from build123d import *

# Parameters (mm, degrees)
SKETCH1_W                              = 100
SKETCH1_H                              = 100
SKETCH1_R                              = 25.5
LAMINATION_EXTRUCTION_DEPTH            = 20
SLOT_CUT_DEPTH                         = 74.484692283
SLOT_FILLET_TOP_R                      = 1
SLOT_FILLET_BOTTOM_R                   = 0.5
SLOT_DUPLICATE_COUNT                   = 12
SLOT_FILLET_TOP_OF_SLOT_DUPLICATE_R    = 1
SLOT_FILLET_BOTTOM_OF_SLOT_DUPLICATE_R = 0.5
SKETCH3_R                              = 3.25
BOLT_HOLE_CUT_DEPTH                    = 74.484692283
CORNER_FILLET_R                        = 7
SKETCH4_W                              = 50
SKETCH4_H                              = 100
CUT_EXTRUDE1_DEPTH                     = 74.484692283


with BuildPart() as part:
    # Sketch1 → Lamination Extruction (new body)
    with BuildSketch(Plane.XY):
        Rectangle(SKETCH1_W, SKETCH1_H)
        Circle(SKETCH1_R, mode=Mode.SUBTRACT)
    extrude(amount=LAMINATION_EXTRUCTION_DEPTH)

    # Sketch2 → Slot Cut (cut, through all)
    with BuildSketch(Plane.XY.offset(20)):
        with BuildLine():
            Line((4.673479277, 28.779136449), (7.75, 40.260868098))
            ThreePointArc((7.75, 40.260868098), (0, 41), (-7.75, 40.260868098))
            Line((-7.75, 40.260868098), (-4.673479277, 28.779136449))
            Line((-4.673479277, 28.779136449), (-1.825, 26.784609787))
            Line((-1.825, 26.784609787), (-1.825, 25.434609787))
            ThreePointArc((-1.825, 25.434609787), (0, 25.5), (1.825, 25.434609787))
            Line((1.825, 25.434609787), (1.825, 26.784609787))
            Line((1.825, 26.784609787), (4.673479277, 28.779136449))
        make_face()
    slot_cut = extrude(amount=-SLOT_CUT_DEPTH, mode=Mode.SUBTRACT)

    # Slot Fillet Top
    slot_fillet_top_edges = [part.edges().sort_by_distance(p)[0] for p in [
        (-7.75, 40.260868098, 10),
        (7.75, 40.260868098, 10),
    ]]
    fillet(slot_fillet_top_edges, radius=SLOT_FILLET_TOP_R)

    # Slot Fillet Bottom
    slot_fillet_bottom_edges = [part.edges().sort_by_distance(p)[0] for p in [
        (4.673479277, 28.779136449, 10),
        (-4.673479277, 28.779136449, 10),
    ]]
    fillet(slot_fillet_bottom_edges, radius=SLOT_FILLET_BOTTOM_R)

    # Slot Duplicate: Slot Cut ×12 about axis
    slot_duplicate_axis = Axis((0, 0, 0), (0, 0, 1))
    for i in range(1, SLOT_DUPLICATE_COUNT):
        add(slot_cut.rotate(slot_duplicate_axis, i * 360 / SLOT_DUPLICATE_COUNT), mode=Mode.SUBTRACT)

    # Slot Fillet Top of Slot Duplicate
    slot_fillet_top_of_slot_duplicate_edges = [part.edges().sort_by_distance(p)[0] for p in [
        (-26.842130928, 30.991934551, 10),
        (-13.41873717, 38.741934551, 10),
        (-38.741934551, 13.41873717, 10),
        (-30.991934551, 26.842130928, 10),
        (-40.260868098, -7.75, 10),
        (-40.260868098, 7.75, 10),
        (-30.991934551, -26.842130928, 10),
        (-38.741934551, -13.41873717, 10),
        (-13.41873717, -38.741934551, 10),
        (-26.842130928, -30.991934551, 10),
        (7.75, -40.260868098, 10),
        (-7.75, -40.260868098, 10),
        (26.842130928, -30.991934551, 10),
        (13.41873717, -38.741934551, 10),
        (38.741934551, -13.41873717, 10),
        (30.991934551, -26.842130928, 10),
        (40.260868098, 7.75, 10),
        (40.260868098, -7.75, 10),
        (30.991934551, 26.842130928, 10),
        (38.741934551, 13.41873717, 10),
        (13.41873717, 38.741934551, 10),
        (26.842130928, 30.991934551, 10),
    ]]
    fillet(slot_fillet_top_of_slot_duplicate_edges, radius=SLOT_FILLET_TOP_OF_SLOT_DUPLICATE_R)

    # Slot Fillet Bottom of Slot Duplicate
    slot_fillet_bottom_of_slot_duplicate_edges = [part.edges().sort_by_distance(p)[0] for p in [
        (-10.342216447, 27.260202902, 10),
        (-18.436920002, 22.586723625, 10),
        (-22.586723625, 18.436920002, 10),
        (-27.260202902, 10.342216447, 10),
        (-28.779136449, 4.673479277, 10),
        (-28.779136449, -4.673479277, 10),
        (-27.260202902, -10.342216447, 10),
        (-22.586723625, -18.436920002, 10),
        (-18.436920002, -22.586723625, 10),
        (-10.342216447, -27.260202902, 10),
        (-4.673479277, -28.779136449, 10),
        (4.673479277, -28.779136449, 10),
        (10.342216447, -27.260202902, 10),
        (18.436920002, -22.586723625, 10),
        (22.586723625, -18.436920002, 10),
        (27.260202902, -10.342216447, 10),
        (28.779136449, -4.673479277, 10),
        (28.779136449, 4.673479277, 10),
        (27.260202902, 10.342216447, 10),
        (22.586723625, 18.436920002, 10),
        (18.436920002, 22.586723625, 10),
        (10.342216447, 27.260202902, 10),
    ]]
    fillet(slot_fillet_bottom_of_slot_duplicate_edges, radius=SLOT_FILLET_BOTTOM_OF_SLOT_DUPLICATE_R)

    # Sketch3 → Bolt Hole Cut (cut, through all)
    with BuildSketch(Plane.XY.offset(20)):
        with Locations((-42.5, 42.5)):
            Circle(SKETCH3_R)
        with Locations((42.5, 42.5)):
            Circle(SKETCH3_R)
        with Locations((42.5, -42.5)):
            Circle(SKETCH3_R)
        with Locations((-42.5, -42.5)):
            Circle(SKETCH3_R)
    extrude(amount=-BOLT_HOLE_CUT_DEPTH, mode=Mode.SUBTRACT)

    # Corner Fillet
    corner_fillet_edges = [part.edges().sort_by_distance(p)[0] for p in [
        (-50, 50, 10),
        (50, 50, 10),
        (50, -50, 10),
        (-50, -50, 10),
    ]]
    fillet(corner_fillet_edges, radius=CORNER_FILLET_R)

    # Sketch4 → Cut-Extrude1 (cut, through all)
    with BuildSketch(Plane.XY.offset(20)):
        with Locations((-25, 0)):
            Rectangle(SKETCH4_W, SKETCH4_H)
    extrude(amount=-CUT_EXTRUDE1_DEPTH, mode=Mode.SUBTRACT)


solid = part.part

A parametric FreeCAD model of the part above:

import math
import FreeCAD as App
import Part
import Sketcher
from FreeCAD import Vector
Q = App.Units.Quantity


def edges_at(feature, points):
    """Names of the edges that pass closest to the given points."""
    edges = feature.Shape.Edges
    near = lambda p: min(range(len(edges)), key=lambda i: edges[i].distToShape(Part.Vertex(*p))[0])
    return sorted({f"Edge{near(p) + 1}" for p in points})

doc = App.newDocument("Part")
params = doc.addObject("Spreadsheet::Sheet", "Params")
for row, (alias, value) in enumerate([
    ("sketch1_diameter", "51 mm"),
    ("sketch1_width", "100 mm"),
    ("pad1_length", "20 mm"),
    ("sketch2_radius", "41 mm"),
    ("sketch2_radius2", "25.5 mm"),
    ("sketch2_height", "1.35 mm"),
    ("fillet_radius", "1 mm"),
    ("fillet2_radius", "0.5 mm"),
    ("fillet3_radius", "1 mm"),
    ("fillet4_radius", "0.5 mm"),
    ("sketch3_diameter", "6.5 mm"),
    ("fillet5_radius", "7 mm"),
    ("sketch4_width", "50 mm"),
    ("sketch4_height", "100 mm"),
], start=1):
    params.set(f"A{row}", alias)
    params.set(f"B{row}", "=" + value)
    params.setAlias(f"B{row}", alias)

body = doc.addObject("PartDesign::Body", "Body")

# Sketch on XY plane
sketch1 = doc.addObject("Sketcher::SketchObject", "Sketch")
body.addObject(sketch1)
sketch1.AttachmentSupport = (doc.XY_Plane, [""])
sketch1.MapMode = "FlatFace"
sketch1.addGeometry([
    Part.LineSegment(Vector(-50, 50, 0), Vector(-50, -50, 0)),  # 0
    Part.LineSegment(Vector(-50, -50, 0), Vector(50, -50, 0)),  # 1
    Part.LineSegment(Vector(50, -50, 0), Vector(50, 50, 0)),  # 2
    Part.LineSegment(Vector(50, 50, 0), Vector(-50, 50, 0)),  # 3
    Part.Circle(Vector(0, 0, 0), Vector(0, 0, 1), 26),  # 4
], False)
sketch1.addConstraint([
    Sketcher.Constraint("Coincident", 0, 2, 1, 1),
    Sketcher.Constraint("Coincident", 1, 2, 2, 1),
    Sketcher.Constraint("Coincident", 2, 2, 3, 1),
    Sketcher.Constraint("Coincident", 3, 2, 0, 1),
    Sketcher.Constraint("Vertical", 0),
    Sketcher.Constraint("Horizontal", 1),
    Sketcher.Constraint("Vertical", 2),
    Sketcher.Constraint("Horizontal", 3),
    Sketcher.Constraint("Coincident", 4, 3, -1, 1),
    Sketcher.Constraint("Symmetric", 0, 2, 2, 2, -1, 1),
    Sketcher.Constraint("Equal", 3, 0),
    Sketcher.Constraint("Diameter", 4, 51.0),
    Sketcher.Constraint("DistanceX", 1, 1, 1, 2, 100.0),
])
sketch1.setExpression("Constraints[11]", "Params.sketch1_diameter")
sketch1.setExpression("Constraints[12]", "Params.sketch1_width")
pad1 = doc.addObject("PartDesign::Pad", "Pad")
body.addObject(pad1)
pad1.Profile = sketch1
pad1.setExpression("Length", "Params.pad1_length")

# Sketch on XY plane
sketch2 = doc.addObject("Sketcher::SketchObject", "Sketch001")
body.addObject(sketch2)
sketch2.AttachmentSupport = (doc.XY_Plane, [""])
sketch2.MapMode = "FlatFace"
sketch2.AttachmentOffset = App.Placement(Vector(0, 0, 20), App.Rotation())
sketch2.addGeometry([
    Part.LineSegment(Vector(4.7, 28.8, 0), Vector(7.8, 40.3, 0)),  # 0
    Part.ArcOfCircle(Part.Circle(Vector(0, 0, 0), Vector(0, 0, 1), 41), math.radians(79), math.radians(101)),  # 1
    Part.LineSegment(Vector(-7.8, 40.3, 0), Vector(-4.7, 28.8, 0)),  # 2
    Part.LineSegment(Vector(-4.7, 28.8, 0), Vector(-1.8, 26.8, 0)),  # 3
    Part.LineSegment(Vector(-1.8, 26.8, 0), Vector(-1.8, 25.4, 0)),  # 4
    Part.ArcOfCircle(Part.Circle(Vector(0, 0, 0), Vector(0, 0, 1), 25.5), math.radians(85.9), math.radians(94.1)),  # 5
    Part.LineSegment(Vector(1.8, 25.4, 0), Vector(1.8, 26.8, 0)),  # 6
    Part.LineSegment(Vector(1.8, 26.8, 0), Vector(4.7, 28.8, 0)),  # 7
], False)
sketch2.addConstraint([
    Sketcher.Constraint("Coincident", 0, 2, 1, 1),
    Sketcher.Constraint("Coincident", 1, 2, 2, 1),
    Sketcher.Constraint("Coincident", 2, 2, 3, 1),
    Sketcher.Constraint("Coincident", 3, 2, 4, 1),
    Sketcher.Constraint("Coincident", 4, 2, 5, 2),
    Sketcher.Constraint("Coincident", 5, 1, 6, 1),
    Sketcher.Constraint("Coincident", 6, 2, 7, 1),
    Sketcher.Constraint("Coincident", 7, 2, 0, 1),
    Sketcher.Constraint("Vertical", 4),
    Sketcher.Constraint("Vertical", 6),
    Sketcher.Constraint("Coincident", 1, 3, -1, 1),
    Sketcher.Constraint("Coincident", 5, 3, -1, 1),
    Sketcher.Constraint("Symmetric", 3, 2, 6, 2, -2),
    Sketcher.Constraint("Symmetric", 2, 2, 7, 2, -2),
    Sketcher.Constraint("Horizontal", 0, 2, 1, 2),
    Sketcher.Constraint("Radius", 1, 41.0),
    Sketcher.Constraint("Radius", 5, 25.5),
    Sketcher.Constraint("Angle", 0, Q("75 deg")),
    Sketcher.Constraint("Angle", 3, Q("-35 deg")),
    Sketcher.Constraint("DistanceY", 4, 2, 4, 1, 1.35),
    Sketcher.Constraint("DistanceX", 1, 2, 0, 2, 15.5),
    Sketcher.Constraint("DistanceX", 4, 2, 5, 1, 3.65),
])
sketch2.setExpression("Constraints[15]", "Params.sketch2_radius")
sketch2.setExpression("Constraints[16]", "Params.sketch2_radius2")
sketch2.setExpression("Constraints[19]", "Params.sketch2_height")
pocket1 = doc.addObject("PartDesign::Pocket", "Pocket")
body.addObject(pocket1)
pocket1.Profile = sketch2
pocket1.Type = "ThroughAll"
doc.recompute()

fillet = doc.addObject("PartDesign::Fillet", "Fillet")
body.addObject(fillet)
fillet.Base = (pocket1, edges_at(pocket1, [(-7.75, 40.261, 10), (7.75, 40.261, 10)]))
fillet.setExpression("Radius", "Params.fillet_radius")
doc.recompute()

fillet2 = doc.addObject("PartDesign::Fillet", "Fillet001")
body.addObject(fillet2)
fillet2.Base = (fillet, edges_at(fillet, [(4.673, 28.779, 10), (-4.673, 28.779, 10)]))
fillet2.setExpression("Radius", "Params.fillet2_radius")
doc.recompute()

polarpattern = doc.addObject("PartDesign::PolarPattern", "PolarPattern")
body.addObject(polarpattern)
polarpattern.Originals = [pocket1]
polarpattern.Axis = (doc.Z_Axis, [""])
polarpattern.Angle = 360
polarpattern.Occurrences = 12
body.Tip = polarpattern
doc.recompute()

fillet3 = doc.addObject("PartDesign::Fillet", "Fillet002")
body.addObject(fillet3)
fillet3.Base = (polarpattern, edges_at(polarpattern, [
    (-26.842, 30.992, 10),
    (-13.419, 38.742, 10),
    (-38.742, 13.419, 10),
    (-30.992, 26.842, 10),
    (-40.261, -7.75, 10),
    (-40.261, 7.75, 10),
    (-30.992, -26.842, 10),
    (-38.742, -13.419, 10),
    (-13.419, -38.742, 10),
    (-26.842, -30.992, 10),
    (7.75, -40.261, 10),
    (-7.75, -40.261, 10),
    (26.842, -30.992, 10),
    (13.419, -38.742, 10),
    (38.742, -13.419, 10),
    (30.992, -26.842, 10),
    (40.261, 7.75, 10),
    (40.261, -7.75, 10),
    (30.992, 26.842, 10),
    (38.742, 13.419, 10),
    (13.419, 38.742, 10),
    (26.842, 30.992, 10),
]))
fillet3.setExpression("Radius", "Params.fillet3_radius")
doc.recompute()

fillet4 = doc.addObject("PartDesign::Fillet", "Fillet003")
body.addObject(fillet4)
fillet4.Base = (fillet3, edges_at(fillet3, [
    (-10.342, 27.26, 10),
    (-18.437, 22.587, 10),
    (-22.587, 18.437, 10),
    (-27.26, 10.342, 10),
    (-28.779, 4.673, 10),
    (-28.779, -4.673, 10),
    (-27.26, -10.342, 10),
    (-22.587, -18.437, 10),
    (-18.437, -22.587, 10),
    (-10.342, -27.26, 10),
    (-4.673, -28.779, 10),
    (4.673, -28.779, 10),
    (10.342, -27.26, 10),
    (18.437, -22.587, 10),
    (22.587, -18.437, 10),
    (27.26, -10.342, 10),
    (28.779, -4.673, 10),
    (28.779, 4.673, 10),
    (27.26, 10.342, 10),
    (22.587, 18.437, 10),
    (18.437, 22.587, 10),
    (10.342, 27.26, 10),
]))
fillet4.setExpression("Radius", "Params.fillet4_radius")

# Sketch on XY plane
sketch3 = doc.addObject("Sketcher::SketchObject", "Sketch002")
body.addObject(sketch3)
sketch3.AttachmentSupport = (doc.XY_Plane, [""])
sketch3.MapMode = "FlatFace"
sketch3.AttachmentOffset = App.Placement(Vector(0, 0, 20), App.Rotation())
sketch3.addGeometry([
    Part.Circle(Vector(-42.5, 42.5, 0), Vector(0, 0, 1), 3.2),
    Part.Circle(Vector(42.5, 42.5, 0), Vector(0, 0, 1), 3.2),
    Part.Circle(Vector(42.5, -42.5, 0), Vector(0, 0, 1), 3.2),
    Part.Circle(Vector(-42.5, -42.5, 0), Vector(0, 0, 1), 3.2),
], False)
sketch3.addConstraint([
    Sketcher.Constraint("Equal", 0, 1),
    Sketcher.Constraint("Equal", 1, 2),
    Sketcher.Constraint("Equal", 2, 3),
    Sketcher.Constraint("Symmetric", 0, 3, 2, 3, -1, 1),
    Sketcher.Constraint("Symmetric", 1, 3, 3, 3, -1, 1),
    Sketcher.Constraint("Symmetric", 0, 3, 1, 3, -2),
    Sketcher.Constraint("Diameter", 0, 6.5),
    Sketcher.Constraint("DistanceX", 0, 3, 1, 3, 85.0),
    Sketcher.Constraint("DistanceY", 2, 3, 1, 3, 85.0),
])
sketch3.setExpression("Constraints[6]", "Params.sketch3_diameter")
pocket2 = doc.addObject("PartDesign::Pocket", "Pocket001")
body.addObject(pocket2)
pocket2.Profile = sketch3
pocket2.Type = "ThroughAll"
doc.recompute()

fillet5 = doc.addObject("PartDesign::Fillet", "Fillet004")
body.addObject(fillet5)
fillet5.Base = (pocket2, edges_at(pocket2, [
    (-50, 50, 10),
    (50, 50, 10),
    (50, -50, 10),
    (-50, -50, 10),
]))
fillet5.setExpression("Radius", "Params.fillet5_radius")

# Sketch on XY plane
sketch4 = doc.addObject("Sketcher::SketchObject", "Sketch003")
body.addObject(sketch4)
sketch4.AttachmentSupport = (doc.XY_Plane, [""])
sketch4.MapMode = "FlatFace"
sketch4.AttachmentOffset = App.Placement(Vector(0, 0, 20), App.Rotation())
sketch4.addGeometry([
    Part.LineSegment(Vector(-50, 50, 0), Vector(-50, -50, 0)),
    Part.LineSegment(Vector(-50, -50, 0), Vector(0, -50, 0)),
    Part.LineSegment(Vector(0, -50, 0), Vector(0, 50, 0)),
    Part.LineSegment(Vector(0, 50, 0), Vector(-50, 50, 0)),
], False)
sketch4.addConstraint([
    Sketcher.Constraint("Coincident", 0, 2, 1, 1),
    Sketcher.Constraint("Coincident", 1, 2, 2, 1),
    Sketcher.Constraint("Coincident", 2, 2, 3, 1),
    Sketcher.Constraint("Coincident", 3, 2, 0, 1),
    Sketcher.Constraint("Vertical", 0),
    Sketcher.Constraint("Horizontal", 1),
    Sketcher.Constraint("Vertical", 2),
    Sketcher.Constraint("Horizontal", 3),
    Sketcher.Constraint("Symmetric", 1, 2, 2, 2, -1, 1),
    Sketcher.Constraint("DistanceX", 1, 1, 1, 2, 50.0),
    Sketcher.Constraint("DistanceY", 0, 2, 0, 1, 100.0),
])
sketch4.setExpression("Constraints[9]", "Params.sketch4_width")
sketch4.setExpression("Constraints[10]", "Params.sketch4_height")
pocket3 = doc.addObject("PartDesign::Pocket", "Pocket002")
body.addObject(pocket3)
pocket3.Profile = sketch4
pocket3.Type = "ThroughAll"

doc.recompute()
